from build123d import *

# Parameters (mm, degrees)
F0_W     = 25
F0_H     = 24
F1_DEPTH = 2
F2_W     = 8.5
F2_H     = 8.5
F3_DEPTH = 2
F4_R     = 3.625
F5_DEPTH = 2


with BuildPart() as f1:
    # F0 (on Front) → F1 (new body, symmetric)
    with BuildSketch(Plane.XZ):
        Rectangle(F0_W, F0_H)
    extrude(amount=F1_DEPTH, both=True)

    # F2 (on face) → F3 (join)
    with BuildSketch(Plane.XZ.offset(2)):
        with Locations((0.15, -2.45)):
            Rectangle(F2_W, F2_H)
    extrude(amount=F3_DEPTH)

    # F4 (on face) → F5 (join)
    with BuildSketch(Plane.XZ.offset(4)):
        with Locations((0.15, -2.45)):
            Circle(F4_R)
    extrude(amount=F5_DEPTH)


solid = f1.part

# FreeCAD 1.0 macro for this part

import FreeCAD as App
import Part
import Sketcher
Q = App.Units.Quantity


def add_polygon(sketch, points):
    """Adds a closed chain of lines whose ends are joined by coincident constraints."""
    first, n = sketch.GeometryCount, len(points)
    for a, b in zip(points, points[1:] + points[:1]):
        sketch.addGeometry(Part.LineSegment(App.Vector(*a, 0), App.Vector(*b, 0)), False)
    for i in range(n):
        sketch.addConstraint(Sketcher.Constraint("Coincident", first + i, 2, first + (i + 1) % n, 1))

doc = App.newDocument("Part")
body = doc.addObject("PartDesign::Body", "Body")

# Sketch on XZ plane
sketch1 = body.newObject("Sketcher::SketchObject", "Sketch")
sketch1.AttachmentSupport = (doc.getObject("XZ_Plane"), [""])
sketch1.MapMode = "FlatFace"
add_polygon(sketch1, [(-12.5, 12), (-12.5, -12), (12.5, -12), (12.5, 12)])  # lines 0-3
sketch1.addConstraint(Sketcher.Constraint("Vertical", 0))
sketch1.addConstraint(Sketcher.Constraint("Horizontal", 1))
sketch1.addConstraint(Sketcher.Constraint("Vertical", 2))
sketch1.addConstraint(Sketcher.Constraint("Horizontal", 3))
sketch1.addConstraint(Sketcher.Constraint("Symmetric", 0, 2, 2, 2, -1, 1))
sketch1.addConstraint(Sketcher.Constraint("DistanceX", 1, 1, 1, 2, Q("25 mm")))
sketch1.addConstraint(Sketcher.Constraint("DistanceY", 0, 2, 0, 1, Q("24 mm")))
pad1 = body.newObject("PartDesign::Pad", "Pad")
pad1.Profile = sketch1
pad1.Length = 4
pad1.Midplane = True

# Sketch on XZ plane
sketch2 = body.newObject("Sketcher::SketchObject", "Sketch001")
sketch2.AttachmentSupport = (doc.getObject("XZ_Plane"), [""])
sketch2.MapMode = "FlatFace"
sketch2.AttachmentOffset = App.Placement(App.Vector(0, 0, 2), App.Rotation())
add_polygon(sketch2, [(-4.1, 1.8), (-4.1, -6.7), (4.4, -6.7), (4.4, 1.8)])  # lines 0-3
sketch2.addConstraint(Sketcher.Constraint("Vertical", 0))
sketch2.addConstraint(Sketcher.Constraint("Horizontal", 1))
sketch2.addConstraint(Sketcher.Constraint("Vertical", 2))
sketch2.addConstraint(Sketcher.Constraint("Horizontal", 3))
sketch2.addConstraint(Sketcher.Constraint("Equal", 3, 0))
sketch2.addConstraint(Sketcher.Constraint("DistanceX", 1, 1, 1, 2, Q("8.5 mm")))
sketch2.addConstraint(Sketcher.Constraint("DistanceX", 0, 2, -1, 1, Q("4.1 mm")))
sketch2.addConstraint(Sketcher.Constraint("DistanceY", 0, 2, -1, 1, Q("6.7 mm")))
pad2 = body.newObject("PartDesign::Pad", "Pad001")
pad2.Profile = sketch2
pad2.Length = 2

# Sketch on XZ plane
sketch3 = body.newObject("Sketcher::SketchObject", "Sketch002")
sketch3.AttachmentSupport = (doc.getObject("XZ_Plane"), [""])
sketch3.MapMode = "FlatFace"
sketch3.AttachmentOffset = App.Placement(App.Vector(0, 0, 4), App.Rotation())
sketch3.addGeometry(Part.Circle(App.Vector(0.15, -2.45, 0), App.Vector(0, 0, 1), 3.625), False)
sketch3.addConstraint(Sketcher.Constraint("Diameter", 0, Q("7.25 mm")))
sketch3.addConstraint(Sketcher.Constraint("DistanceX", -1, 1, 0, 3, Q("0.15 mm")))
sketch3.addConstraint(Sketcher.Constraint("DistanceY", 0, 3, -1, 1, Q("2.45 mm")))
pad3 = body.newObject("PartDesign::Pad", "Pad002")
pad3.Profile = sketch3
pad3.Length = 2

doc.recompute()
